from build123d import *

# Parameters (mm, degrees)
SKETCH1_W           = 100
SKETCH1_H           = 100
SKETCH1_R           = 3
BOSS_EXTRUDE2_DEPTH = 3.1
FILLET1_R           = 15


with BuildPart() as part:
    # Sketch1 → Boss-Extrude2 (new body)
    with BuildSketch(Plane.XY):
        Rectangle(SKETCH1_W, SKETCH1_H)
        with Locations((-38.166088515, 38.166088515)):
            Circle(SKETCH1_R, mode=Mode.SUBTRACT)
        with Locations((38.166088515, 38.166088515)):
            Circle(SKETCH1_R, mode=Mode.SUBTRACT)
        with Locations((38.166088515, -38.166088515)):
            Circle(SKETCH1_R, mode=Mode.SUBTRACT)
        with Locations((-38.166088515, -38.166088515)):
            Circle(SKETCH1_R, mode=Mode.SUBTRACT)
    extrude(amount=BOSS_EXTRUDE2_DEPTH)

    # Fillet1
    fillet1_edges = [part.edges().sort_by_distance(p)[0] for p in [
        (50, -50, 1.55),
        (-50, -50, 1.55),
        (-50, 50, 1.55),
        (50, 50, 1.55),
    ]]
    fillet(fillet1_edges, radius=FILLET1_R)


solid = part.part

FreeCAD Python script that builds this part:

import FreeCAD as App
import Part
import Sketcher
Q = App.Units.Quantity


def edges_at(feature, points):
    """Names of the edges that pass closest to the given points."""
    edges = feature.Shape.Edges
    near = lambda p: min(range(len(edges)), key=lambda i: edges[i].distToShape(Part.Vertex(*p))[0])
    return sorted({f"Edge{near(p) + 1}" for p in points})

doc = App.newDocument("Part")
body = doc.addObject("PartDesign::Body", "Body")

# Sketch on XY plane
sketch1 = doc.addObject("Sketcher::SketchObject", "Sketch")
body.addObject(sketch1)
sketch1.AttachmentSupport = (doc.XY_Plane, [""])
sketch1.MapMode = "FlatFace"
sketch1.addGeometry(Part.LineSegment(App.Vector(-50, 50, 0), App.Vector(-50, -50, 0)), False)
sketch1.addGeometry(Part.LineSegment(App.Vector(-50, -50, 0), App.Vector(50, -50, 0)), False)
sketch1.addGeometry(Part.LineSegment(App.Vector(50, -50, 0), App.Vector(50, 50, 0)), False)
sketch1.addGeometry(Part.LineSegment(App.Vector(50, 50, 0), App.Vector(-50, 50, 0)), False)
sketch1.addGeometry(Part.Circle(App.Vector(-38.2, -38.2, 0), App.Vector(0, 0, 1), 3), False)
sketch1.addGeometry(Part.Circle(App.Vector(38.2, -38.2, 0), App.Vector(0, 0, 1), 3), False)
sketch1.addGeometry(Part.Circle(App.Vector(-38.2, 38.2, 0), App.Vector(0, 0, 1), 3), False)
sketch1.addGeometry(Part.Circle(App.Vector(38.2, 38.2, 0), App.Vector(0, 0, 1), 3), False)
sketch1.addConstraint(Sketcher.Constraint("Coincident", 0, 2, 1, 1))
sketch1.addConstraint(Sketcher.Constraint("Coincident", 1, 2, 2, 1))
sketch1.addConstraint(Sketcher.Constraint("Coincident", 2, 2, 3, 1))
sketch1.addConstraint(Sketcher.Constraint("Coincident", 3, 2, 0, 1))
sketch1.addConstraint(Sketcher.Constraint("Vertical", 0))
sketch1.addConstraint(Sketcher.Constraint("Horizontal", 1))
sketch1.addConstraint(Sketcher.Constraint("Vertical", 2))
sketch1.addConstraint(Sketcher.Constraint("Horizontal", 3))
sketch1.addConstraint(Sketcher.Constraint("Equal", 4, 5))
sketch1.addConstraint(Sketcher.Constraint("Equal", 5, 6))
sketch1.addConstraint(Sketcher.Constraint("Equal", 6, 7))
sketch1.addConstraint(Sketcher.Constraint("Symmetric", 5, 3, 6, 3, -1, 1))
sketch1.addConstraint(Sketcher.Constraint("Symmetric", 4, 3, 7, 3, -1, 1))
sketch1.addConstraint(Sketcher.Constraint("Symmetric", 0, 2, 2, 2, -1, 1))
sketch1.addConstraint(Sketcher.Constraint("Symmetric", 4, 3, 5, 3, -2))
sketch1.addConstraint(Sketcher.Constraint("Equal", 3, 0))
sketch1.addConstraint(Sketcher.Constraint("Diameter", 4, Q("6 mm")))
sketch1.addConstraint(Sketcher.Constraint("DistanceX", 1, 1, 1, 2, Q("100 mm")))
sketch1.addConstraint(Sketcher.Constraint("DistanceX", 4, 3, -1, 1, Q("38.166089 mm")))
sketch1.addConstraint(Sketcher.Constraint("DistanceY", 4, 3, -1, 1, Q("38.166089 mm")))
pad1 = doc.addObject("PartDesign::Pad", "Pad")
body.addObject(pad1)
pad1.Profile = sketch1
pad1.Length = 3.1
doc.recompute()

fillet = doc.addObject("PartDesign::Fillet", "Fillet")
body.addObject(fillet)
fillet.Base = (pad1, edges_at(pad1, [
    (50, -50, 1.55),
    (-50, -50, 1.55),
    (-50, 50, 1.55),
    (50, 50, 1.55),
]))
fillet.Radius = 15

doc.recompute()
